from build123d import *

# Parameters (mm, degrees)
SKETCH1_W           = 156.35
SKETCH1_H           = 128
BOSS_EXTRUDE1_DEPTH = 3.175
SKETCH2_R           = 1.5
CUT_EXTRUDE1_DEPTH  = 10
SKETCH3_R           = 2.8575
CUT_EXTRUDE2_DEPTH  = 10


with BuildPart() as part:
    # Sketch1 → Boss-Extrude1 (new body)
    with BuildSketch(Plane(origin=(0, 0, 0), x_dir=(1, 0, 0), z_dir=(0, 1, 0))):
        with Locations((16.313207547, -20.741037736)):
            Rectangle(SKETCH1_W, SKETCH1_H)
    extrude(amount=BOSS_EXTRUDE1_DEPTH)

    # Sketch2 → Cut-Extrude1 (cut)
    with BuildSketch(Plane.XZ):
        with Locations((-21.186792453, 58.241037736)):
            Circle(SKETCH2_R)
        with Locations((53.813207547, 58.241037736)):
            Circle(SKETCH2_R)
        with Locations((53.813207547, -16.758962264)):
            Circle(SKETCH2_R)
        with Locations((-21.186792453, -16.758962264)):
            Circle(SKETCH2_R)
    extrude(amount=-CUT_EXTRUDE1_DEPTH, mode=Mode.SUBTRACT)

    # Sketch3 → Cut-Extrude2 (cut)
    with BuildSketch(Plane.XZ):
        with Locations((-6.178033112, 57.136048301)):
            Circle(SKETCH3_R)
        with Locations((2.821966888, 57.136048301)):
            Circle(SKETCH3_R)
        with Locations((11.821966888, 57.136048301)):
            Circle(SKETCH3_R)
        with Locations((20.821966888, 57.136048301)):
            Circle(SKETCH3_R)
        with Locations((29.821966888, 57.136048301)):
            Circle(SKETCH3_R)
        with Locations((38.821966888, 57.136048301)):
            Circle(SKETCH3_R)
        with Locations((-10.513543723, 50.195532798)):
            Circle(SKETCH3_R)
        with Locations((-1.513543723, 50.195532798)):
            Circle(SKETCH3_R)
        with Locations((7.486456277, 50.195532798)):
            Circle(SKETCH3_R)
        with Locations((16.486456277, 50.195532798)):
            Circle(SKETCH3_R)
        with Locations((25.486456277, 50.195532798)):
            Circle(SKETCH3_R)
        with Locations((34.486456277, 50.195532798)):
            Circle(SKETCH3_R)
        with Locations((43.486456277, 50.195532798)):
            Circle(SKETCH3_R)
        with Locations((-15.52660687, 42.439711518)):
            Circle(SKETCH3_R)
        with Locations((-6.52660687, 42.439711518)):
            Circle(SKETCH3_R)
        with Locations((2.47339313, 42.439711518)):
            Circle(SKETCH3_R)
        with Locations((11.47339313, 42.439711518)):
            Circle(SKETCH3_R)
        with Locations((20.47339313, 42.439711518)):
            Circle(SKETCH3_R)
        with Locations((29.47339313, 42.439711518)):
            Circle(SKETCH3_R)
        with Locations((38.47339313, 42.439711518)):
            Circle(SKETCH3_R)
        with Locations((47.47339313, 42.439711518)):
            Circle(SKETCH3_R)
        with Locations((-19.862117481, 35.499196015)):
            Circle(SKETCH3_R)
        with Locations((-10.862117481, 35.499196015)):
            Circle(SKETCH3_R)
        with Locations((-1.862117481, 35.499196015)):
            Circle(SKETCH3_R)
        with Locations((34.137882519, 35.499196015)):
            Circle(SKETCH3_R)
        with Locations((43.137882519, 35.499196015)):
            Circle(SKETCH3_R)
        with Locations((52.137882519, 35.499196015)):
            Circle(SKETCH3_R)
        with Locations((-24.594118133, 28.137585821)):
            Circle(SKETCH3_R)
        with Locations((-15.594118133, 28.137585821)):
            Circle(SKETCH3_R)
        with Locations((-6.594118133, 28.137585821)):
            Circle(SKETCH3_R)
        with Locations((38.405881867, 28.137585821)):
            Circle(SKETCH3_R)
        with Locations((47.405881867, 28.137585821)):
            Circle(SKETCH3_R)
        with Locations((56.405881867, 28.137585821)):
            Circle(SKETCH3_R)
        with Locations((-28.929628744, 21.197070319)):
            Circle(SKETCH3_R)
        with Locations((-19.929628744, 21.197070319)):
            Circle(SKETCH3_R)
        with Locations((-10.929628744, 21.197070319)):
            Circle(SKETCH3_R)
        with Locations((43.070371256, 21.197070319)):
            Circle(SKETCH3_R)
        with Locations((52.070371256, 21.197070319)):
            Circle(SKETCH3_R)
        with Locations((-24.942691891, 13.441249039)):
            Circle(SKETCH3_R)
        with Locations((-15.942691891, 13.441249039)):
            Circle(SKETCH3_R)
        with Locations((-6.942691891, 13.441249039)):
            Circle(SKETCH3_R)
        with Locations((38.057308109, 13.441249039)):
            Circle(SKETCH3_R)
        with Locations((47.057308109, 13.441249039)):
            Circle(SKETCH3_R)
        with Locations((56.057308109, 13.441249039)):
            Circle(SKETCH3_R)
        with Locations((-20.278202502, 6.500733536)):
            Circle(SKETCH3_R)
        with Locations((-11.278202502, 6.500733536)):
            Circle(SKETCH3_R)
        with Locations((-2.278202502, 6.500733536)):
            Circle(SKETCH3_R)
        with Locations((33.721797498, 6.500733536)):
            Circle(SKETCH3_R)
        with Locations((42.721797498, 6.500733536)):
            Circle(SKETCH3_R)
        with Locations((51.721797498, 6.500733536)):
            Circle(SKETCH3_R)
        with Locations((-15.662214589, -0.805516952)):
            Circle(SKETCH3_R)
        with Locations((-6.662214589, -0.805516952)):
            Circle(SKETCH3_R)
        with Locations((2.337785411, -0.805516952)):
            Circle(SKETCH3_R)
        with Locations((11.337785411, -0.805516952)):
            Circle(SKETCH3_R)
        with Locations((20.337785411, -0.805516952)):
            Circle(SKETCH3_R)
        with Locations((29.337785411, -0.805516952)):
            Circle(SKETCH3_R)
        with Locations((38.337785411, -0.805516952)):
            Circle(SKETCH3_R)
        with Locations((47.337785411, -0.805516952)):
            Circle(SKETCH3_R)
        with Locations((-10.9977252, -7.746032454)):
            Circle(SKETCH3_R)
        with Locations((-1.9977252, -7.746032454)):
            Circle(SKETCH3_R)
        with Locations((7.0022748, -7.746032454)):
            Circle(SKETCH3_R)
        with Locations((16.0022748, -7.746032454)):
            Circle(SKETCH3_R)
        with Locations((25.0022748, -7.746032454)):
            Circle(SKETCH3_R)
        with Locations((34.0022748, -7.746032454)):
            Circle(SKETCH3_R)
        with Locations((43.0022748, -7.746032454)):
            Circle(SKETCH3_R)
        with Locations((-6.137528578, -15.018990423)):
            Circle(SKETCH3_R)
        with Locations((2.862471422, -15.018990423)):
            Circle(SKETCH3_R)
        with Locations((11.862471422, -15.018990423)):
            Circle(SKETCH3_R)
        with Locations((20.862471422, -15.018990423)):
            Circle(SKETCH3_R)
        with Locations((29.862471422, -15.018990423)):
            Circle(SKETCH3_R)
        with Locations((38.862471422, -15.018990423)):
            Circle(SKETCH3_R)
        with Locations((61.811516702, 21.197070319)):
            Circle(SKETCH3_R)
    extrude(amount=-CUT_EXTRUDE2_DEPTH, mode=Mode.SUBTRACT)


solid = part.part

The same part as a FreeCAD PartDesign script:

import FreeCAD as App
import Part
import Sketcher
from FreeCAD import Vector
Q = App.Units.Quantity

doc = App.newDocument("Part")
body = doc.addObject("PartDesign::Body", "Body")

sketch1 = body.newObject("Sketcher::SketchObject", "Sketch")
sketch1.AttachmentSupport = (doc.getObject("XZ_Plane"), [""])
sketch1.MapMode = "FlatFace"
sketch1.addGeometry([
    Part.LineSegment(Vector(-62, -43, 0), Vector(-62, 85, 0)),
    Part.LineSegment(Vector(-62, 85, 0), Vector(94, 85, 0)),
    Part.LineSegment(Vector(94, 85, 0), Vector(94, -43, 0)),
    Part.LineSegment(Vector(94, -43, 0), Vector(-62, -43, 0)),
], False)
sketch1.addConstraint([
    Sketcher.Constraint("Coincident", 0, 2, 1, 1),
    Sketcher.Constraint("Coincident", 1, 2, 2, 1),
    Sketcher.Constraint("Coincident", 2, 2, 3, 1),
    Sketcher.Constraint("Coincident", 3, 2, 0, 1),
    Sketcher.Constraint("Vertical", 0),
    Sketcher.Constraint("Horizontal", 1),
    Sketcher.Constraint("Vertical", 2),
    Sketcher.Constraint("Horizontal", 3),
    Sketcher.Constraint("DistanceY", 0, 1, 0, 2, Q("128 mm")),
    Sketcher.Constraint("DistanceX", 1, 1, 1, 2, Q("156.35 mm")),
    Sketcher.Constraint("DistanceX", 0, 2, -1, 1, Q("61.861792 mm")),
    Sketcher.Constraint("DistanceY", -1, 1, 0, 2, Q("84.741038 mm")),
])
pad1 = body.newObject("PartDesign::Pad", "Pad")
pad1.Profile = sketch1
pad1.Length = 3.175
pad1.Reversed = True

sketch2 = body.newObject("Sketcher::SketchObject", "Sketch001")
sketch2.AttachmentSupport = (doc.getObject("XZ_Plane"), [""])
sketch2.MapMode = "FlatFace"
sketch2.addGeometry([
    Part.Circle(Vector(-21.2, 58.2, 0), Vector(0, 0, 1), 1.5),
    Part.Circle(Vector(53.8, 58.2, 0), Vector(0, 0, 1), 1.5),
    Part.Circle(Vector(53.8, -16.8, 0), Vector(0, 0, 1), 1.5),
    Part.Circle(Vector(-21.2, -16.8, 0), Vector(0, 0, 1), 1.5),
], False)
sketch2.addConstraint([
    Sketcher.Constraint("Equal", 0, 1),
    Sketcher.Constraint("Equal", 1, 2),
    Sketcher.Constraint("Equal", 2, 3),
    Sketcher.Constraint("Horizontal", 0, 3, 1, 3),
    Sketcher.Constraint("Horizontal", 2, 3, 3, 3),
    Sketcher.Constraint("Vertical", 1, 3, 2, 3),
    Sketcher.Constraint("Vertical", 0, 3, 3, 3),
    Sketcher.Constraint("Diameter", 0, Q("3 mm")),
    Sketcher.Constraint("DistanceX", 0, 3, 1, 3, Q("75 mm")),
    Sketcher.Constraint("DistanceY", 2, 3, 1, 3, Q("75 mm")),
    Sketcher.Constraint("DistanceX", 0, 3, -1, 1, Q("21.186792 mm")),
    Sketcher.Constraint("DistanceY", -1, 1, 0, 3, Q("58.241038 mm")),
])
pocket1 = body.newObject("PartDesign::Pocket", "Pocket")
pocket1.Profile = sketch2
pocket1.Length = 10

sketch3 = body.newObject("Sketcher::SketchObject", "Sketch002")
sketch3.AttachmentSupport = (doc.getObject("XZ_Plane"), [""])
sketch3.MapMode = "FlatFace"
sketch3.addGeometry([
    Part.Circle(Vector(-6.2, 57.1, 0), Vector(0, 0, 1), 2.9),
    Part.Circle(Vector(2.8, 57.1, 0), Vector(0, 0, 1), 2.9),
    Part.Circle(Vector(11.8, 57.1, 0), Vector(0, 0, 1), 2.9),
    Part.Circle(Vector(20.8, 57.1, 0), Vector(0, 0, 1), 2.9),
    Part.Circle(Vector(29.8, 57.1, 0), Vector(0, 0, 1), 2.9),
    Part.Circle(Vector(38.8, 57.1, 0), Vector(0, 0, 1), 2.9),
    Part.Circle(Vector(-10.5, 50.2, 0), Vector(0, 0, 1), 2.9),
    Part.Circle(Vector(-1.5, 50.2, 0), Vector(0, 0, 1), 2.9),
    Part.Circle(Vector(7.5, 50.2, 0), Vector(0, 0, 1), 2.9),
    Part.Circle(Vector(16.5, 50.2, 0), Vector(0, 0, 1), 2.9),
    Part.Circle(Vector(25.5, 50.2, 0), Vector(0, 0, 1), 2.9),
    Part.Circle(Vector(34.5, 50.2, 0), Vector(0, 0, 1), 2.9),
    Part.Circle(Vector(43.5, 50.2, 0), Vector(0, 0, 1), 2.9),
    Part.Circle(Vector(-15.5, 42.4, 0), Vector(0, 0, 1), 2.9),
    Part.Circle(Vector(-6.5, 42.4, 0), Vector(0, 0, 1), 2.9),
    Part.Circle(Vector(2.5, 42.4, 0), Vector(0, 0, 1), 2.9),
    Part.Circle(Vector(11.5, 42.4, 0), Vector(0, 0, 1), 2.9),
    Part.Circle(Vector(20.5, 42.4, 0), Vector(0, 0, 1), 2.9),
    Part.Circle(Vector(29.5, 42.4, 0), Vector(0, 0, 1), 2.9),
    Part.Circle(Vector(38.5, 42.4, 0), Vector(0, 0, 1), 2.9),
    Part.Circle(Vector(47.5, 42.4, 0), Vector(0, 0, 1), 2.9),
    Part.Circle(Vector(-19.9, 35.5, 0), Vector(0, 0, 1), 2.9),
    Part.Circle(Vector(-10.9, 35.5, 0), Vector(0, 0, 1), 2.9),
    Part.Circle(Vector(-1.9, 35.5, 0), Vector(0, 0, 1), 2.9),
    Part.Circle(Vector(34.1, 35.5, 0), Vector(0, 0, 1), 2.9),
    Part.Circle(Vector(43.1, 35.5, 0), Vector(0, 0, 1), 2.9),
    Part.Circle(Vector(52.1, 35.5, 0), Vector(0, 0, 1), 2.9),
    Part.Circle(Vector(-24.6, 28.1, 0), Vector(0, 0, 1), 2.9),
    Part.Circle(Vector(-15.6, 28.1, 0), Vector(0, 0, 1), 2.9),
    Part.Circle(Vector(-6.6, 28.1, 0), Vector(0, 0, 1), 2.9),
    Part.Circle(Vector(38.4, 28.1, 0), Vector(0, 0, 1), 2.9),
    Part.Circle(Vector(47.4, 28.1, 0), Vector(0, 0, 1), 2.9),
    Part.Circle(Vector(56.4, 28.1, 0), Vector(0, 0, 1), 2.9),
    Part.Circle(Vector(-28.9, 21.2, 0), Vector(0, 0, 1), 2.9),
    Part.Circle(Vector(-19.9, 21.2, 0), Vector(0, 0, 1), 2.9),
    Part.Circle(Vector(-10.9, 21.2, 0), Vector(0, 0, 1), 2.9),
    Part.Circle(Vector(43.1, 21.2, 0), Vector(0, 0, 1), 2.9),
    Part.Circle(Vector(52.1, 21.2, 0), Vector(0, 0, 1), 2.9),
    Part.Circle(Vector(-24.9, 13.4, 0), Vector(0, 0, 1), 2.9),
    Part.Circle(Vector(-15.9, 13.4, 0), Vector(0, 0, 1), 2.9),
    Part.Circle(Vector(-6.9, 13.4, 0), Vector(0, 0, 1), 2.9),
    Part.Circle(Vector(38.1, 13.4, 0), Vector(0, 0, 1), 2.9),
    Part.Circle(Vector(47.1, 13.4, 0), Vector(0, 0, 1), 2.9),
    Part.Circle(Vector(56.1, 13.4, 0), Vector(0, 0, 1), 2.9),
    Part.Circle(Vector(-20.3, 6.5, 0), Vector(0, 0, 1), 2.9),
    Part.Circle(Vector(-11.3, 6.5, 0), Vector(0, 0, 1), 2.9),
    Part.Circle(Vector(-2.3, 6.5, 0), Vector(0, 0, 1), 2.9),
    Part.Circle(Vector(33.7, 6.5, 0), Vector(0, 0, 1), 2.9),
    Part.Circle(Vector(42.7, 6.5, 0), Vector(0, 0, 1), 2.9),
    Part.Circle(Vector(51.7, 6.5, 0), Vector(0, 0, 1), 2.9),
    Part.Circle(Vector(-15.7, -0.8, 0), Vector(0, 0, 1), 2.9),
    Part.Circle(Vector(-6.7, -0.8, 0), Vector(0, 0, 1), 2.9),
    Part.Circle(Vector(2.3, -0.8, 0), Vector(0, 0, 1), 2.9),
    Part.Circle(Vector(11.3, -0.8, 0), Vector(0, 0, 1), 2.9),
    Part.Circle(Vector(20.3, -0.8, 0), Vector(0, 0, 1), 2.9),
    Part.Circle(Vector(29.3, -0.8, 0), Vector(0, 0, 1), 2.9),
    Part.Circle(Vector(38.3, -0.8, 0), Vector(0, 0, 1), 2.9),
    Part.Circle(Vector(47.3, -0.8, 0), Vector(0, 0, 1), 2.9),
    Part.Circle(Vector(-11, -7.7, 0), Vector(0, 0, 1), 2.9),
    Part.Circle(Vector(-2, -7.7, 0), Vector(0, 0, 1), 2.9),
    Part.Circle(Vector(7, -7.7, 0), Vector(0, 0, 1), 2.9),
    Part.Circle(Vector(16, -7.7, 0), Vector(0, 0, 1), 2.9),
    Part.Circle(Vector(25, -7.7, 0), Vector(0, 0, 1), 2.9),
    Part.Circle(Vector(34, -7.7, 0), Vector(0, 0, 1), 2.9),
    Part.Circle(Vector(43, -7.7, 0), Vector(0, 0, 1), 2.9),
    Part.Circle(Vector(-6.1, -15, 0), Vector(0, 0, 1), 2.9),
    Part.Circle(Vector(2.9, -15, 0), Vector(0, 0, 1), 2.9),
    Part.Circle(Vector(11.9, -15, 0), Vector(0, 0, 1), 2.9),
    Part.Circle(Vector(20.9, -15, 0), Vector(0, 0, 1), 2.9),
    Part.Circle(Vector(29.9, -15, 0), Vector(0, 0, 1), 2.9),
    Part.Circle(Vector(38.9, -15, 0), Vector(0, 0, 1), 2.9),
    Part.Circle(Vector(61.8, 21.2, 0), Vector(0, 0, 1), 2.9),
], False)
sketch3.addConstraint([
    Sketcher.Constraint("Equal", 0, 1),
    Sketcher.Constraint("Equal", 1, 2),
    Sketcher.Constraint("Equal", 2, 3),
    Sketcher.Constraint("Equal", 3, 4),
    Sketcher.Constraint("Equal", 4, 5),
    Sketcher.Constraint("Equal", 5, 6),
    Sketcher.Constraint("Equal", 6, 7),
    Sketcher.Constraint("Equal", 7, 8),
    Sketcher.Constraint("Equal", 8, 9),
    Sketcher.Constraint("Equal", 9, 10),
    Sketcher.Constraint("Equal", 10, 11),
    Sketcher.Constraint("Equal", 11, 12),
    Sketcher.Constraint("Equal", 12, 13),
    Sketcher.Constraint("Equal", 13, 14),
    Sketcher.Constraint("Equal", 14, 15),
    Sketcher.Constraint("Equal", 15, 16),
    Sketcher.Constraint("Equal", 16, 17),
    Sketcher.Constraint("Equal", 17, 18),
    Sketcher.Constraint("Equal", 18, 19),
    Sketcher.Constraint("Equal", 19, 20),
    Sketcher.Constraint("Equal", 20, 21),
    Sketcher.Constraint("Equal", 21, 22),
    Sketcher.Constraint("Equal", 22, 23),
    Sketcher.Constraint("Equal", 23, 24),
    Sketcher.Constraint("Equal", 24, 25),
    Sketcher.Constraint("Equal", 25, 26),
    Sketcher.Constraint("Equal", 26, 27),
    Sketcher.Constraint("Equal", 27, 28),
    Sketcher.Constraint("Equal", 28, 29),
    Sketcher.Constraint("Equal", 29, 30),
    Sketcher.Constraint("Equal", 30, 31),
    Sketcher.Constraint("Equal", 31, 32),
    Sketcher.Constraint("Equal", 32, 33),
    Sketcher.Constraint("Equal", 33, 34),
    Sketcher.Constraint("Equal", 34, 35),
    Sketcher.Constraint("Equal", 35, 36),
    Sketcher.Constraint("Equal", 36, 37),
    Sketcher.Constraint("Equal", 37, 38),
    Sketcher.Constraint("Equal", 38, 39),
    Sketcher.Constraint("Equal", 39, 40),
    Sketcher.Constraint("Equal", 40, 41),
    Sketcher.Constraint("Equal", 41, 42),
    Sketcher.Constraint("Equal", 42, 43),
    Sketcher.Constraint("Equal", 43, 44),
    Sketcher.Constraint("Equal", 44, 45),
    Sketcher.Constraint("Equal", 45, 46),
    Sketcher.Constraint("Equal", 46, 47),
    Sketcher.Constraint("Equal", 47, 48),
    Sketcher.Constraint("Equal", 48, 49),
    Sketcher.Constraint("Equal", 49, 50),
    Sketcher.Constraint("Equal", 50, 51),
    Sketcher.Constraint("Equal", 51, 52),
    Sketcher.Constraint("Equal", 52, 53),
    Sketcher.Constraint("Equal", 53, 54),
    Sketcher.Constraint("Equal", 54, 55),
    Sketcher.Constraint("Equal", 55, 56),
    Sketcher.Constraint("Equal", 56, 57),
    Sketcher.Constraint("Equal", 57, 58),
    Sketcher.Constraint("Equal", 58, 59),
    Sketcher.Constraint("Equal", 59, 60),
    Sketcher.Constraint("Equal", 60, 61),
    Sketcher.Constraint("Equal", 61, 62),
    Sketcher.Constraint("Equal", 62, 63),
    Sketcher.Constraint("Equal", 63, 64),
    Sketcher.Constraint("Equal", 64, 65),
    Sketcher.Constraint("Equal", 65, 66),
    Sketcher.Constraint("Equal", 66, 67),
    Sketcher.Constraint("Equal", 67, 68),
    Sketcher.Constraint("Equal", 68, 69),
    Sketcher.Constraint("Equal", 69, 70),
    Sketcher.Constraint("Equal", 70, 71),
    Sketcher.Constraint("Horizontal", 0, 3, 1, 3),
    Sketcher.Constraint("Horizontal", 1, 3, 2, 3),
    Sketcher.Constraint("Horizontal", 2, 3, 3, 3),
    Sketcher.Constraint("Horizontal", 3, 3, 4, 3),
    Sketcher.Constraint("Horizontal", 4, 3, 5, 3),
    Sketcher.Constraint("Horizontal", 6, 3, 7, 3),
    Sketcher.Constraint("Horizontal", 7, 3, 8, 3),
    Sketcher.Constraint("Horizontal", 8, 3, 9, 3),
    Sketcher.Constraint("Horizontal", 9, 3, 10, 3),
    Sketcher.Constraint("Horizontal", 10, 3, 11, 3),
    Sketcher.Constraint("Horizontal", 11, 3, 12, 3),
    Sketcher.Constraint("Horizontal", 13, 3, 14, 3),
    Sketcher.Constraint("Horizontal", 14, 3, 15, 3),
    Sketcher.Constraint("Horizontal", 15, 3, 16, 3),
    Sketcher.Constraint("Horizontal", 16, 3, 17, 3),
    Sketcher.Constraint("Horizontal", 17, 3, 18, 3),
    Sketcher.Constraint("Horizontal", 18, 3, 19, 3),
    Sketcher.Constraint("Horizontal", 19, 3, 20, 3),
    Sketcher.Constraint("Horizontal", 21, 3, 22, 3),
    Sketcher.Constraint("Horizontal", 22, 3, 23, 3),
    Sketcher.Constraint("Horizontal", 23, 3, 24, 3),
    Sketcher.Constraint("Horizontal", 24, 3, 25, 3),
    Sketcher.Constraint("Horizontal", 25, 3, 26, 3),
    Sketcher.Constraint("Horizontal", 27, 3, 28, 3),
    Sketcher.Constraint("Horizontal", 28, 3, 29, 3),
    Sketcher.Constraint("Horizontal", 29, 3, 30, 3),
    Sketcher.Constraint("Horizontal", 30, 3, 31, 3),
    Sketcher.Constraint("Horizontal", 31, 3, 32, 3),
    Sketcher.Constraint("Horizontal", 33, 3, 34, 3),
    Sketcher.Constraint("Horizontal", 34, 3, 35, 3),
    Sketcher.Constraint("Horizontal", 35, 3, 36, 3),
    Sketcher.Constraint("Horizontal", 36, 3, 37, 3),
    Sketcher.Constraint("Horizontal", 38, 3, 39, 3),
    Sketcher.Constraint("Horizontal", 39, 3, 40, 3),
    Sketcher.Constraint("Horizontal", 40, 3, 41, 3),
    Sketcher.Constraint("Horizontal", 41, 3, 42, 3),
    Sketcher.Constraint("Horizontal", 42, 3, 43, 3),
    Sketcher.Constraint("Horizontal", 44, 3, 45, 3),
    Sketcher.Constraint("Horizontal", 45, 3, 46, 3),
    Sketcher.Constraint("Horizontal", 46, 3, 47, 3),
    Sketcher.Constraint("Horizontal", 47, 3, 48, 3),
    Sketcher.Constraint("Horizontal", 48, 3, 49, 3),
    Sketcher.Constraint("Horizontal", 50, 3, 51, 3),
    Sketcher.Constraint("Horizontal", 51, 3, 52, 3),
    Sketcher.Constraint("Horizontal", 52, 3, 53, 3),
    Sketcher.Constraint("Horizontal", 53, 3, 54, 3),
    Sketcher.Constraint("Horizontal", 54, 3, 55, 3),
    Sketcher.Constraint("Horizontal", 55, 3, 56, 3),
    Sketcher.Constraint("Horizontal", 56, 3, 57, 3),
    Sketcher.Constraint("Horizontal", 58, 3, 59, 3),
    Sketcher.Constraint("Horizontal", 59, 3, 60, 3),
    Sketcher.Constraint("Horizontal", 60, 3, 61, 3),
    Sketcher.Constraint("Horizontal", 61, 3, 62, 3),
    Sketcher.Constraint("Horizontal", 62, 3, 63, 3),
    Sketcher.Constraint("Horizontal", 63, 3, 64, 3),
    Sketcher.Constraint("Horizontal", 65, 3, 66, 3),
    Sketcher.Constraint("Horizontal", 66, 3, 67, 3),
    Sketcher.Constraint("Horizontal", 67, 3, 68, 3),
    Sketcher.Constraint("Horizontal", 68, 3, 69, 3),
    Sketcher.Constraint("Horizontal", 69, 3, 70, 3),
    Sketcher.Constraint("Horizontal", 37, 3, 71, 3),
    Sketcher.Constraint("Diameter", 0, Q("5.715 mm")),
    Sketcher.Constraint("DistanceY", -1, 1, 0, 3, Q("57.136048 mm")),
    Sketcher.Constraint("DistanceY", -1, 1, 13, 3, Q("42.439712 mm")),
    Sketcher.Constraint("DistanceX", 27, 3, -1, 1, Q("24.594118 mm")),
    Sketcher.Constraint("DistanceX", 28, 3, -1, 1, Q("15.594118 mm")),
    Sketcher.Constraint("DistanceX", 29, 3, -1, 1, Q("6.594118 mm")),
    Sketcher.Constraint("DistanceX", -1, 1, 30, 3, Q("38.405882 mm")),
    Sketcher.Constraint("DistanceX", -1, 1, 31, 3, Q("47.405882 mm")),
    Sketcher.Constraint("DistanceX", -1, 1, 32, 3, Q("56.405882 mm")),
    Sketcher.Constraint("DistanceX", 33, 3, -1, 1, Q("28.929629 mm")),
    Sketcher.Constraint("DistanceY", -1, 1, 33, 3, Q("21.19707 mm")),
    Sketcher.Constraint("DistanceX", 34, 3, -1, 1, Q("19.929629 mm")),
    Sketcher.Constraint("DistanceX", 35, 3, -1, 1, Q("10.929629 mm")),
    Sketcher.Constraint("DistanceX", -1, 1, 36, 3, Q("43.070371 mm")),
    Sketcher.Constraint("DistanceX", -1, 1, 37, 3, Q("52.070371 mm")),
    Sketcher.Constraint("DistanceX", 38, 3, -1, 1, Q("24.942692 mm")),
    Sketcher.Constraint("DistanceY", -1, 1, 38, 3, Q("13.441249 mm")),
    Sketcher.Constraint("DistanceX", 39, 3, -1, 1, Q("15.942692 mm")),
    Sketcher.Constraint("DistanceX", 40, 3, -1, 1, Q("6.942692 mm")),
    Sketcher.Constraint("DistanceX", -1, 1, 41, 3, Q("38.057308 mm")),
    Sketcher.Constraint("DistanceX", -1, 1, 42, 3, Q("47.057308 mm")),
    Sketcher.Constraint("DistanceX", -1, 1, 43, 3, Q("56.057308 mm")),
    Sketcher.Constraint("DistanceX", 65, 3, -1, 1, Q("6.137529 mm")),
    Sketcher.Constraint("DistanceY", 65, 3, -1, 1, Q("15.01899 mm")),
    Sketcher.Constraint("DistanceX", -1, 1, 66, 3, Q("2.862471 mm")),
    Sketcher.Constraint("DistanceX", -1, 1, 67, 3, Q("11.862471 mm")),
    Sketcher.Constraint("DistanceX", -1, 1, 68, 3, Q("20.862471 mm")),
    Sketcher.Constraint("DistanceX", -1, 1, 69, 3, Q("29.862471 mm")),
    Sketcher.Constraint("DistanceX", -1, 1, 70, 3, Q("38.862471 mm")),
    Sketcher.Constraint("DistanceX", 0, 3, -1, 1, Q("6.178033 mm")),
    Sketcher.Constraint("DistanceX", -1, 1, 1, 3, Q("2.821967 mm")),
    Sketcher.Constraint("DistanceX", -1, 1, 2, 3, Q("11.821967 mm")),
    Sketcher.Constraint("DistanceX", -1, 1, 3, 3, Q("20.821967 mm")),
    Sketcher.Constraint("DistanceX", -1, 1, 4, 3, Q("29.821967 mm")),
    Sketcher.Constraint("DistanceX", -1, 1, 5, 3, Q("38.821967 mm")),
    Sketcher.Constraint("DistanceX", 6, 3, -1, 1, Q("10.513544 mm")),
    Sketcher.Constraint("DistanceY", -1, 1, 6, 3, Q("50.195533 mm")),
    Sketcher.Constraint("DistanceX", 7, 3, -1, 1, Q("1.513544 mm")),
    Sketcher.Constraint("DistanceX", -1, 1, 8, 3, Q("7.486456 mm")),
    Sketcher.Constraint("DistanceX", -1, 1, 9, 3, Q("16.486456 mm")),
    Sketcher.Constraint("DistanceX", -1, 1, 10, 3, Q("25.486456 mm")),
    Sketcher.Constraint("DistanceX", -1, 1, 11, 3, Q("34.486456 mm")),
    Sketcher.Constraint("DistanceX", -1, 1, 12, 3, Q("43.486456 mm")),
    Sketcher.Constraint("DistanceX", 13, 3, -1, 1, Q("15.526607 mm")),
    Sketcher.Constraint("DistanceX", 14, 3, -1, 1, Q("6.526607 mm")),
    Sketcher.Constraint("DistanceX", -1, 1, 15, 3, Q("2.473393 mm")),
    Sketcher.Constraint("DistanceX", -1, 1, 16, 3, Q("11.473393 mm")),
    Sketcher.Constraint("DistanceX", -1, 1, 17, 3, Q("20.473393 mm")),
    Sketcher.Constraint("DistanceX", -1, 1, 18, 3, Q("29.473393 mm")),
    Sketcher.Constraint("DistanceX", -1, 1, 19, 3, Q("38.473393 mm")),
    Sketcher.Constraint("DistanceX", -1, 1, 20, 3, Q("47.473393 mm")),
    Sketcher.Constraint("DistanceX", 21, 3, -1, 1, Q("19.862117 mm")),
    Sketcher.Constraint("DistanceY", -1, 1, 21, 3, Q("35.499196 mm")),
    Sketcher.Constraint("DistanceX", 22, 3, -1, 1, Q("10.862117 mm")),
    Sketcher.Constraint("DistanceX", 23, 3, -1, 1, Q("1.862117 mm")),
    Sketcher.Constraint("DistanceX", -1, 1, 24, 3, Q("34.137883 mm")),
    Sketcher.Constraint("DistanceX", -1, 1, 25, 3, Q("43.137883 mm")),
    Sketcher.Constraint("DistanceX", -1, 1, 26, 3, Q("52.137883 mm")),
    Sketcher.Constraint("DistanceY", -1, 1, 27, 3, Q("28.137586 mm")),
    Sketcher.Constraint("DistanceX", 44, 3, -1, 1, Q("20.278203 mm")),
    Sketcher.Constraint("DistanceY", -1, 1, 44, 3, Q("6.500734 mm")),
    Sketcher.Constraint("DistanceX", 45, 3, -1, 1, Q("11.278203 mm")),
    Sketcher.Constraint("DistanceX", 46, 3, -1, 1, Q("2.278203 mm")),
    Sketcher.Constraint("DistanceX", -1, 1, 47, 3, Q("33.721797 mm")),
    Sketcher.Constraint("DistanceX", -1, 1, 48, 3, Q("42.721797 mm")),
    Sketcher.Constraint("DistanceX", -1, 1, 49, 3, Q("51.721797 mm")),
    Sketcher.Constraint("DistanceX", 50, 3, -1, 1, Q("15.662215 mm")),
    Sketcher.Constraint("DistanceY", 50, 3, -1, 1, Q("0.805517 mm")),
    Sketcher.Constraint("DistanceX", 51, 3, -1, 1, Q("6.662215 mm")),
    Sketcher.Constraint("DistanceX", -1, 1, 52, 3, Q("2.337785 mm")),
    Sketcher.Constraint("DistanceX", -1, 1, 53, 3, Q("11.337785 mm")),
    Sketcher.Constraint("DistanceX", -1, 1, 54, 3, Q("20.337785 mm")),
    Sketcher.Constraint("DistanceX", -1, 1, 55, 3, Q("29.337785 mm")),
    Sketcher.Constraint("DistanceX", -1, 1, 56, 3, Q("38.337785 mm")),
    Sketcher.Constraint("DistanceX", -1, 1, 57, 3, Q("47.337785 mm")),
    Sketcher.Constraint("DistanceX", 58, 3, -1, 1, Q("10.997725 mm")),
    Sketcher.Constraint("DistanceY", 58, 3, -1, 1, Q("7.746032 mm")),
    Sketcher.Constraint("DistanceX", 59, 3, -1, 1, Q("1.997725 mm")),
    Sketcher.Constraint("DistanceX", -1, 1, 60, 3, Q("7.002275 mm")),
    Sketcher.Constraint("DistanceX", -1, 1, 61, 3, Q("16.002275 mm")),
    Sketcher.Constraint("DistanceX", -1, 1, 62, 3, Q("25.002275 mm")),
    Sketcher.Constraint("DistanceX", -1, 1, 63, 3, Q("34.002275 mm")),
    Sketcher.Constraint("DistanceX", -1, 1, 64, 3, Q("43.002275 mm")),
    Sketcher.Constraint("DistanceX", -1, 1, 71, 3, Q("61.811517 mm")),
])
pocket2 = body.newObject("PartDesign::Pocket", "Pocket001")
pocket2.Profile = sketch3
pocket2.Length = 10

doc.recompute()
